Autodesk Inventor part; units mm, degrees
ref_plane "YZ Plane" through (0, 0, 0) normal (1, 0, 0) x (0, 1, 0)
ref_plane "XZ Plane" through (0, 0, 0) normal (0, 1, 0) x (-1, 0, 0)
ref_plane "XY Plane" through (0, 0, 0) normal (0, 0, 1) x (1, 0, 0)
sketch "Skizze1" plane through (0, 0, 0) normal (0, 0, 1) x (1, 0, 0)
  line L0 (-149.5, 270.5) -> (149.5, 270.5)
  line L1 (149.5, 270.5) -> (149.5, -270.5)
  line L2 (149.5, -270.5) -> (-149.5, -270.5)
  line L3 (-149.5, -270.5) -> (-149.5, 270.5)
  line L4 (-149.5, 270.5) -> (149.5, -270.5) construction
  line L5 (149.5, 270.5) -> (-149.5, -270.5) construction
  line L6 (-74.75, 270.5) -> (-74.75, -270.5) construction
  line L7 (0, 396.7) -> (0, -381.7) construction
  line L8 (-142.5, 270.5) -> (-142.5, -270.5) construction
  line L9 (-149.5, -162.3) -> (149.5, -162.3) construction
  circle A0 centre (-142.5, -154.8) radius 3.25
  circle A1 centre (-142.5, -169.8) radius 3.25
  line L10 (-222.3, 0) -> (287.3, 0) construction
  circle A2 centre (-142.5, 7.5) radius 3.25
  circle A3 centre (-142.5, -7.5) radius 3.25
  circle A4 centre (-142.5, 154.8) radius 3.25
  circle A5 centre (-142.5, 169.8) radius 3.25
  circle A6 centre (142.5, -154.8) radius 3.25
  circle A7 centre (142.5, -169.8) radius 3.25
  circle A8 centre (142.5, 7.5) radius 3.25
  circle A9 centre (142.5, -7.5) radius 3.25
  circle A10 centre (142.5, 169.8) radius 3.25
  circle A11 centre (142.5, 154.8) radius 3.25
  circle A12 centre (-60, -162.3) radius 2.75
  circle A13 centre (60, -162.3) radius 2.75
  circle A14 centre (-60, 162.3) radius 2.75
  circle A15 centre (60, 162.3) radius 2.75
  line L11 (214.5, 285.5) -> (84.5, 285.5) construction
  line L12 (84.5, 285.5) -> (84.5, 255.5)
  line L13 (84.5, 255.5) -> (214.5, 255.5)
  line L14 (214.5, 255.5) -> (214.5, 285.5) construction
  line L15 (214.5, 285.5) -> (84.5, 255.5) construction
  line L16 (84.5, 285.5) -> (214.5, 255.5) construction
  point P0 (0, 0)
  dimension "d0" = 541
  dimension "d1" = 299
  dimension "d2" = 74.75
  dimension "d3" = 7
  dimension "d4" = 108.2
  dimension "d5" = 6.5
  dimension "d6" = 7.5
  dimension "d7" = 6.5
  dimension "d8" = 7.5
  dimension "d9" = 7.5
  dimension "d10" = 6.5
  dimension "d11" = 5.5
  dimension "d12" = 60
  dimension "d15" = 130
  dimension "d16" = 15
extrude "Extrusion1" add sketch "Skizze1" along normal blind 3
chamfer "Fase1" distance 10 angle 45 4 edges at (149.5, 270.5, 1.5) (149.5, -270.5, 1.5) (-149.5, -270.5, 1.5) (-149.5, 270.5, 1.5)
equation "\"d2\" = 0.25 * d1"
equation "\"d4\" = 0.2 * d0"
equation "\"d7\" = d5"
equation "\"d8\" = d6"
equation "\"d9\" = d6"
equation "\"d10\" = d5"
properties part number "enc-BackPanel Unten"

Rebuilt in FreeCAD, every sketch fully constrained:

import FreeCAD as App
import Part
import Sketcher
Q = App.Units.Quantity


def edges_at(feature, points):
    """Names of the edges that pass closest to the given points."""
    edges = feature.Shape.Edges
    near = lambda p: min(range(len(edges)), key=lambda i: edges[i].distToShape(Part.Vertex(*p))[0])
    return sorted({f"Edge{near(p) + 1}" for p in points})

doc = App.newDocument("Part")
body = doc.addObject("PartDesign::Body", "Body")

sketch1 = body.newObject("Sketcher::SketchObject", "Sketch")
sketch1.AttachmentSupport = (doc.getObject("XY_Plane"), [""])
sketch1.MapMode = "FlatFace"
sketch1.addGeometry([
    Part.LineSegment(App.Vector(-149.5, 270.5, 0), App.Vector(-149.5, -270.5, 0)),
    Part.LineSegment(App.Vector(-149.5, -270.5, 0), App.Vector(149.5, -270.5, 0)),
    Part.LineSegment(App.Vector(149.5, -270.5, 0), App.Vector(149.5, 270.5, 0)),
    Part.LineSegment(App.Vector(149.5, 270.5, 0), App.Vector(-149.5, 270.5, 0)),
    Part.Circle(App.Vector(-142.5, -169.8, 0), App.Vector(0, 0, 1), 3.2),
    Part.Circle(App.Vector(-142.5, -154.8, 0), App.Vector(0, 0, 1), 3.2),
    Part.Circle(App.Vector(-60, -162.3, 0), App.Vector(0, 0, 1), 2.8),
    Part.Circle(App.Vector(-142.5, -7.5, 0), App.Vector(0, 0, 1), 3.2),
    Part.Circle(App.Vector(60, -162.3, 0), App.Vector(0, 0, 1), 2.8),
    Part.Circle(App.Vector(142.5, -169.8, 0), App.Vector(0, 0, 1), 3.2),
    Part.Circle(App.Vector(142.5, -154.8, 0), App.Vector(0, 0, 1), 3.2),
    Part.Circle(App.Vector(142.5, -7.5, 0), App.Vector(0, 0, 1), 3.2),
    Part.Circle(App.Vector(-142.5, 7.5, 0), App.Vector(0, 0, 1), 3.2),
    Part.Circle(App.Vector(-142.5, 154.8, 0), App.Vector(0, 0, 1), 3.2),
    Part.Circle(App.Vector(-142.5, 169.8, 0), App.Vector(0, 0, 1), 3.2),
    Part.Circle(App.Vector(-60, 162.3, 0), App.Vector(0, 0, 1), 2.8),
    Part.Circle(App.Vector(142.5, 7.5, 0), App.Vector(0, 0, 1), 3.2),
    Part.Circle(App.Vector(60, 162.3, 0), App.Vector(0, 0, 1), 2.8),
    Part.Circle(App.Vector(142.5, 154.8, 0), App.Vector(0, 0, 1), 3.2),
    Part.Circle(App.Vector(142.5, 169.8, 0), App.Vector(0, 0, 1), 3.2),
], False)
sketch1.addConstraint([
    Sketcher.Constraint("Coincident", 0, 2, 1, 1),
    Sketcher.Constraint("Coincident", 1, 2, 2, 1),
    Sketcher.Constraint("Coincident", 2, 2, 3, 1),
    Sketcher.Constraint("Coincident", 3, 2, 0, 1),
    Sketcher.Constraint("Vertical", 0),
    Sketcher.Constraint("Horizontal", 1),
    Sketcher.Constraint("Vertical", 2),
    Sketcher.Constraint("Horizontal", 3),
    Sketcher.Constraint("Equal", 4, 5),
    Sketcher.Constraint("Equal", 5, 7),
    Sketcher.Constraint("Equal", 6, 8),
    Sketcher.Constraint("Equal", 7, 9),
    Sketcher.Constraint("Equal", 9, 10),
    Sketcher.Constraint("Equal", 10, 11),
    Sketcher.Constraint("Equal", 11, 12),
    Sketcher.Constraint("Equal", 12, 13),
    Sketcher.Constraint("Equal", 13, 14),
    Sketcher.Constraint("Equal", 8, 15),
    Sketcher.Constraint("Equal", 14, 16),
    Sketcher.Constraint("Equal", 15, 17),
    Sketcher.Constraint("Equal", 16, 18),
    Sketcher.Constraint("Equal", 18, 19),
    Sketcher.Constraint("Symmetric", 11, 3, 12, 3, -1, 1),
    Sketcher.Constraint("Symmetric", 10, 3, 13, 3, -1, 1),
    Sketcher.Constraint("Symmetric", 9, 3, 14, 3, -1, 1),
    Sketcher.Constraint("Symmetric", 8, 3, 15, 3, -1, 1),
    Sketcher.Constraint("Symmetric", 7, 3, 16, 3, -1, 1),
    Sketcher.Constraint("Symmetric", 6, 3, 17, 3, -1, 1),
    Sketcher.Constraint("Symmetric", 5, 3, 18, 3, -1, 1),
    Sketcher.Constraint("Symmetric", 4, 3, 19, 3, -1, 1),
    Sketcher.Constraint("Symmetric", 0, 2, 2, 2, -1, 1),
    Sketcher.Constraint("Symmetric", 6, 3, 8, 3, -2),
    Sketcher.Constraint("Symmetric", 4, 3, 9, 3, -2),
    Sketcher.Constraint("Symmetric", 5, 3, 10, 3, -2),
    Sketcher.Constraint("Symmetric", 7, 3, 11, 3, -2),
    Sketcher.Constraint("Vertical", 4, 3, 5, 3),
    Sketcher.Constraint("Vertical", 5, 3, 7, 3),
    Sketcher.Constraint("Diameter", 4, Q("6.5 mm")),
    Sketcher.Constraint("Diameter", 6, Q("5.5 mm")),
    Sketcher.Constraint("DistanceX", 1, 1, 1, 2, Q("299 mm")),
    Sketcher.Constraint("DistanceY", 0, 2, 0, 1, Q("541 mm")),
    Sketcher.Constraint("DistanceX", 6, 3, -1, 1, Q("60 mm")),
    Sketcher.Constraint("DistanceY", 4, 3, 5, 3, Q("15 mm")),
    Sketcher.Constraint("DistanceY", 7, 3, 12, 3, Q("15 mm")),
    Sketcher.Constraint("DistanceX", 0, 2, 4, 3, Q("7 mm")),
    Sketcher.Constraint("DistanceY", 4, 3, 6, 3, Q("7.5 mm")),
    Sketcher.Constraint("DistanceY", 0, 2, 6, 3, Q("108.2 mm")),
])
pad1 = body.newObject("PartDesign::Pad", "Pad")
pad1.Profile = sketch1
pad1.Length = 3
doc.recompute()

chamfer = body.newObject("PartDesign::Chamfer", "Chamfer")
chamfer.Base = (pad1, edges_at(pad1, [
    (149.5, 270.5, 1.5),
    (149.5, -270.5, 1.5),
    (-149.5, -270.5, 1.5),
    (-149.5, 270.5, 1.5),
]))
chamfer.Size = 10

doc.recompute()
